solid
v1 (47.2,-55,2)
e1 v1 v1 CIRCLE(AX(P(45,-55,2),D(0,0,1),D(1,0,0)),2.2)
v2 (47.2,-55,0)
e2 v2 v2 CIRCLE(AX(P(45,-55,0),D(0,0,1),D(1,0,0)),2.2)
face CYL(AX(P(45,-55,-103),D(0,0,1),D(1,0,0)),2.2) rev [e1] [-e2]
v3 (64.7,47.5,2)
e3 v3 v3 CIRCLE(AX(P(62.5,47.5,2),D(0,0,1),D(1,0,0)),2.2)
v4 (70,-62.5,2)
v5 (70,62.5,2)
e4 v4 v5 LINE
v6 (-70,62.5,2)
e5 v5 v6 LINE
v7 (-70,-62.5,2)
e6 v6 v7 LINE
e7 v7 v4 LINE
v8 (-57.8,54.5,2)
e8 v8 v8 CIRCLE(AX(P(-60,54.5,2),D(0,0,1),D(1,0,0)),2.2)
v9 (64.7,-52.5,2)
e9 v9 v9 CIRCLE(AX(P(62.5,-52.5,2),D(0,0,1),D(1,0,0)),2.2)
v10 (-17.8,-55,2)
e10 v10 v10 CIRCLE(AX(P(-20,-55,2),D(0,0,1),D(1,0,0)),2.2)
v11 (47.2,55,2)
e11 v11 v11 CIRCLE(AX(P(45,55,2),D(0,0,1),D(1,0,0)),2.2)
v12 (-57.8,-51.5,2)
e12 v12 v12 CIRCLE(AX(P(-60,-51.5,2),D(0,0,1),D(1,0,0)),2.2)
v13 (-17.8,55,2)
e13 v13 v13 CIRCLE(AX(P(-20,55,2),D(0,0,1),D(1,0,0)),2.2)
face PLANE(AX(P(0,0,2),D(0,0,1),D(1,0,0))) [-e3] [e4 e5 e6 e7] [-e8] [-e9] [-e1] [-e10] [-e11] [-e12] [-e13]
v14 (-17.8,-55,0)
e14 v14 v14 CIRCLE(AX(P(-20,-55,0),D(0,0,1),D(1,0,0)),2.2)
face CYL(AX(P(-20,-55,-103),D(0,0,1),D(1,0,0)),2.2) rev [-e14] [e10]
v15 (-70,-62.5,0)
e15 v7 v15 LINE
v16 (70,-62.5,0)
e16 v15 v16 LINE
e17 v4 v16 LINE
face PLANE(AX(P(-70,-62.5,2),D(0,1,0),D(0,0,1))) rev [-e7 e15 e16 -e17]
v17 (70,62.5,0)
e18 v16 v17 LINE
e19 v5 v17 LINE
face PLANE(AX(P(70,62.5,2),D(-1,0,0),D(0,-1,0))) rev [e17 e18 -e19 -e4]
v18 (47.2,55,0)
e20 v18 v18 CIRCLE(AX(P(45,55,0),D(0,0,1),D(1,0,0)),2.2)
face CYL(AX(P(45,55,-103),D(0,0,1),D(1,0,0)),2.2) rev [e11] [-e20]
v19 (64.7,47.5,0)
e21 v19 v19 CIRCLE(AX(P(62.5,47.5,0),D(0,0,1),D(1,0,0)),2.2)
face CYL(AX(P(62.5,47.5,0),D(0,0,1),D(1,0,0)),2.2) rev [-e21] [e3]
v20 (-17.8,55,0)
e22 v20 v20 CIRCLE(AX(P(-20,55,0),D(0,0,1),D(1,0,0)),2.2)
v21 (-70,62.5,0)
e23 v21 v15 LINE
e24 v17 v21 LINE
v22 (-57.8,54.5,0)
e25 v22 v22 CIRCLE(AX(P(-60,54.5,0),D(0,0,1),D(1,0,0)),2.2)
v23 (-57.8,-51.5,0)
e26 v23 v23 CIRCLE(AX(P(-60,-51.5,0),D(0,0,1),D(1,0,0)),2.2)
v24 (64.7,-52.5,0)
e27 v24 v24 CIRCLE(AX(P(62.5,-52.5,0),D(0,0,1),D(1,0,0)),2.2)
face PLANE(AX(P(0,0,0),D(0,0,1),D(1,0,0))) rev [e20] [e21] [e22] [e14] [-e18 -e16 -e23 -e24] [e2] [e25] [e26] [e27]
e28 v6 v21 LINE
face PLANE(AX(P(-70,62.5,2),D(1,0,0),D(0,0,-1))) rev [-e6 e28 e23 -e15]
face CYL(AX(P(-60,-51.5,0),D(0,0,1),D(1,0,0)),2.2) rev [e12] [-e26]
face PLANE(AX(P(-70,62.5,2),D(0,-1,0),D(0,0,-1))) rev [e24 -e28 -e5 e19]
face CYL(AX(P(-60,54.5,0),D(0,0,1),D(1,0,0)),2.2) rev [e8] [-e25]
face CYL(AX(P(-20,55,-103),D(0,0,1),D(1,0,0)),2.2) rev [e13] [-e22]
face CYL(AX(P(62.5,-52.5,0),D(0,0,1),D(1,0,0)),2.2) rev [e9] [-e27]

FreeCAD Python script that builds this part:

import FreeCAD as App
import Part
import Sketcher

V = App.Vector
Q = App.Units.Quantity


def add_polygon(sketch, points):
    """Adds a closed chain of lines whose ends are joined by coincident constraints."""
    first, n = sketch.GeometryCount, len(points)
    for a, b in zip(points, points[1:] + points[:1]):
        sketch.addGeometry(Part.LineSegment(App.Vector(*a, 0), App.Vector(*b, 0)), False)
    for i in range(n):
        sketch.addConstraint(Sketcher.Constraint("Coincident", first + i, 2, first + (i + 1) % n, 1))

doc = App.newDocument("Part")
body = doc.addObject("PartDesign::Body", "Body")

# Sketch on XY plane
sketch1 = body.newObject("Sketcher::SketchObject", "Sketch")
sketch1.AttachmentSupport = (doc.getObject("XY_Plane"), [""])
sketch1.MapMode = "FlatFace"
add_polygon(sketch1, [(-70, 62.5), (-70, -62.5), (70, -62.5), (70, 62.5)])  # lines 0-3
sketch1.addConstraint([
    Sketcher.Constraint("Vertical", 0),
    Sketcher.Constraint("Horizontal", 1),
    Sketcher.Constraint("Vertical", 2),
    Sketcher.Constraint("Horizontal", 3),
    Sketcher.Constraint("Symmetric", 0, 2, 2, 2, -1, 1),
    Sketcher.Constraint("DistanceX", 1, 1, 1, 2, Q("140 mm")),
    Sketcher.Constraint("DistanceY", 0, 2, 0, 1, Q("125 mm")),
])
pad1 = body.newObject("PartDesign::Pad", "Pad")
pad1.Profile = sketch1
pad1.Length = 2

# Sketch on XY plane
sketch2 = body.newObject("Sketcher::SketchObject", "Sketch001")
sketch2.AttachmentSupport = (doc.getObject("XY_Plane"), [""])
sketch2.MapMode = "FlatFace"
sketch2.AttachmentOffset = App.Placement(V(0, 0, 2), App.Rotation())
sketch2.addGeometry([
    Part.Circle(V(-60, 54.5, 0), V(0, 0, 1), 2.2),
    Part.Circle(V(-60, -51.5, 0), V(0, 0, 1), 2.2),
], False)
sketch2.addConstraint([
    Sketcher.Constraint("Equal", 0, 1),
    Sketcher.Constraint("Vertical", 0, 3, 1, 3),
    Sketcher.Constraint("Diameter", 0, Q("4.4 mm")),
    Sketcher.Constraint("DistanceX", 0, 3, -1, 1, Q("60 mm")),
    Sketcher.Constraint("DistanceY", 1, 3, 0, 3, Q("106 mm")),
    Sketcher.Constraint("DistanceY", -1, 1, 0, 3, Q("54.5 mm")),
])
pocket1 = body.newObject("PartDesign::Pocket", "Pocket")
pocket1.Profile = sketch2
pocket1.Length = 2

# Sketch on XY plane
sketch3 = body.newObject("Sketcher::SketchObject", "Sketch002")
sketch3.AttachmentSupport = (doc.getObject("XY_Plane"), [""])
sketch3.MapMode = "FlatFace"
sketch3.AttachmentOffset = App.Placement(V(0, 0, 2), App.Rotation())
sketch3.addGeometry([
    Part.Circle(V(62.5, -52.5, 0), V(0, 0, 1), 2.2),
    Part.Circle(V(62.5, 47.5, 0), V(0, 0, 1), 2.2),
], False)
sketch3.addConstraint([
    Sketcher.Constraint("Equal", 0, 1),
    Sketcher.Constraint("Vertical", 0, 3, 1, 3),
    Sketcher.Constraint("Diameter", 0, Q("4.4 mm")),
    Sketcher.Constraint("DistanceY", 0, 3, 1, 3, Q("100 mm")),
    Sketcher.Constraint("DistanceX", -1, 1, 0, 3, Q("62.5 mm")),
    Sketcher.Constraint("DistanceY", 0, 3, -1, 1, Q("52.5 mm")),
])
pocket2 = body.newObject("PartDesign::Pocket", "Pocket001")
pocket2.Profile = sketch3
pocket2.Length = 2

# Sketch on XY plane
sketch4 = body.newObject("Sketcher::SketchObject", "Sketch003")
sketch4.AttachmentSupport = (doc.getObject("XY_Plane"), [""])
sketch4.MapMode = "FlatFace"
sketch4.AttachmentOffset = App.Placement(V(0, 0, 2), App.Rotation())
sketch4.addGeometry([
    Part.Circle(V(45, 55, 0), V(0, 0, 1), 2.2),
    Part.Circle(V(-20, 55, 0), V(0, 0, 1), 2.2),
    Part.Circle(V(-20, -55, 0), V(0, 0, 1), 2.2),
    Part.Circle(V(45, -55, 0), V(0, 0, 1), 2.2),
], False)
sketch4.addConstraint([
    Sketcher.Constraint("Equal", 0, 1),
    Sketcher.Constraint("Equal", 1, 2),
    Sketcher.Constraint("Equal", 2, 3),
    Sketcher.Constraint("Symmetric", 1, 3, 2, 3, -1),
    Sketcher.Constraint("Symmetric", 0, 3, 3, 3, -1),
    Sketcher.Constraint("Horizontal", 0, 3, 1, 3),
    Sketcher.Constraint("Diameter", 0, Q("4.4 mm")),
    Sketcher.Constraint("DistanceX", -1, 1, 0, 3, Q("45 mm")),
    Sketcher.Constraint("DistanceY", -1, 1, 0, 3, Q("55 mm")),
    Sketcher.Constraint("DistanceX", 1, 3, -1, 1, Q("20 mm")),
])
pocket3 = body.newObject("PartDesign::Pocket", "Pocket002")
pocket3.Profile = sketch4
pocket3.Length = 105

doc.recompute()
